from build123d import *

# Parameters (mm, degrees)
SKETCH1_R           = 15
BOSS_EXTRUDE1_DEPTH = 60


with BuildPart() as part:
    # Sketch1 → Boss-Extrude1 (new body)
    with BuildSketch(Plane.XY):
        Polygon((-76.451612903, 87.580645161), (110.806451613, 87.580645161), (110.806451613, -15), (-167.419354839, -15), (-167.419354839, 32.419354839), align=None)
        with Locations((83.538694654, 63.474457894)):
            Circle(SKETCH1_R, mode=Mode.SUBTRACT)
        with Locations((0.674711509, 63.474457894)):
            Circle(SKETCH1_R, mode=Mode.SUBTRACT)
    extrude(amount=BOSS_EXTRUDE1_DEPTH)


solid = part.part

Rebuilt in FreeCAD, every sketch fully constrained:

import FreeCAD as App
import Part
import Sketcher
Q = App.Units.Quantity


def add_polygon(sketch, points):
    """Adds a closed chain of lines whose ends are joined by coincident constraints."""
    first, n = sketch.GeometryCount, len(points)
    for a, b in zip(points, points[1:] + points[:1]):
        sketch.addGeometry(Part.LineSegment(App.Vector(*a, 0), App.Vector(*b, 0)), False)
    for i in range(n):
        sketch.addConstraint(Sketcher.Constraint("Coincident", first + i, 2, first + (i + 1) % n, 1))

doc = App.newDocument("Part")
body = doc.addObject("PartDesign::Body", "Body")

# Sketch on XY plane
sketch1 = body.newObject("Sketcher::SketchObject", "Sketch")
sketch1.AttachmentSupport = (doc.getObject("XY_Plane"), [""])
sketch1.MapMode = "FlatFace"
add_polygon(sketch1, [(110.806452, 87.580645), (-76.451613, 87.580645), (-167.419355, 32.419355), (-167.419355, -15), (110.806452, -15)])  # lines 0-4
sketch1.addGeometry(Part.Circle(App.Vector(83.538695, 63.474458, 0), App.Vector(0, 0, 1), 15), False)  # 5
sketch1.addGeometry(Part.Circle(App.Vector(0.674712, 63.474458, 0), App.Vector(0, 0, 1), 15), False)  # 6
sketch1.addConstraint([
    Sketcher.Constraint("Horizontal", 0),
    Sketcher.Constraint("Vertical", 2),
    Sketcher.Constraint("Horizontal", 3),
    Sketcher.Constraint("Vertical", 4),
    Sketcher.Constraint("Equal", 5, 6),
    Sketcher.Constraint("Horizontal", 5, 3, 6, 3),
    Sketcher.Constraint("Diameter", 5, Q("30 mm")),
    Sketcher.Constraint("DistanceY", 2, 2, -1, 1, Q("15 mm")),
    Sketcher.Constraint("Distance", 1, Q("106.38561 mm")),
    Sketcher.Constraint("DistanceX", 0, 2, 0, 1, Q("187.258065 mm")),
    Sketcher.Constraint("DistanceX", 3, 1, 3, 2, Q("278.225806 mm")),
    Sketcher.Constraint("DistanceY", 2, 2, 2, 1, Q("47.419355 mm")),
    Sketcher.Constraint("DistanceX", -1, 1, 6, 3, Q("0.674712 mm")),
    Sketcher.Constraint("DistanceX", -1, 1, 3, 2, Q("110.806452 mm")),
    Sketcher.Constraint("DistanceX", 1, 2, 5, 3, Q("250.958049 mm")),
    Sketcher.Constraint("DistanceY", -1, 1, 5, 3, Q("63.474458 mm")),
])
pad1 = body.newObject("PartDesign::Pad", "Pad")
pad1.Profile = sketch1
pad1.Length = 60

doc.recompute()
